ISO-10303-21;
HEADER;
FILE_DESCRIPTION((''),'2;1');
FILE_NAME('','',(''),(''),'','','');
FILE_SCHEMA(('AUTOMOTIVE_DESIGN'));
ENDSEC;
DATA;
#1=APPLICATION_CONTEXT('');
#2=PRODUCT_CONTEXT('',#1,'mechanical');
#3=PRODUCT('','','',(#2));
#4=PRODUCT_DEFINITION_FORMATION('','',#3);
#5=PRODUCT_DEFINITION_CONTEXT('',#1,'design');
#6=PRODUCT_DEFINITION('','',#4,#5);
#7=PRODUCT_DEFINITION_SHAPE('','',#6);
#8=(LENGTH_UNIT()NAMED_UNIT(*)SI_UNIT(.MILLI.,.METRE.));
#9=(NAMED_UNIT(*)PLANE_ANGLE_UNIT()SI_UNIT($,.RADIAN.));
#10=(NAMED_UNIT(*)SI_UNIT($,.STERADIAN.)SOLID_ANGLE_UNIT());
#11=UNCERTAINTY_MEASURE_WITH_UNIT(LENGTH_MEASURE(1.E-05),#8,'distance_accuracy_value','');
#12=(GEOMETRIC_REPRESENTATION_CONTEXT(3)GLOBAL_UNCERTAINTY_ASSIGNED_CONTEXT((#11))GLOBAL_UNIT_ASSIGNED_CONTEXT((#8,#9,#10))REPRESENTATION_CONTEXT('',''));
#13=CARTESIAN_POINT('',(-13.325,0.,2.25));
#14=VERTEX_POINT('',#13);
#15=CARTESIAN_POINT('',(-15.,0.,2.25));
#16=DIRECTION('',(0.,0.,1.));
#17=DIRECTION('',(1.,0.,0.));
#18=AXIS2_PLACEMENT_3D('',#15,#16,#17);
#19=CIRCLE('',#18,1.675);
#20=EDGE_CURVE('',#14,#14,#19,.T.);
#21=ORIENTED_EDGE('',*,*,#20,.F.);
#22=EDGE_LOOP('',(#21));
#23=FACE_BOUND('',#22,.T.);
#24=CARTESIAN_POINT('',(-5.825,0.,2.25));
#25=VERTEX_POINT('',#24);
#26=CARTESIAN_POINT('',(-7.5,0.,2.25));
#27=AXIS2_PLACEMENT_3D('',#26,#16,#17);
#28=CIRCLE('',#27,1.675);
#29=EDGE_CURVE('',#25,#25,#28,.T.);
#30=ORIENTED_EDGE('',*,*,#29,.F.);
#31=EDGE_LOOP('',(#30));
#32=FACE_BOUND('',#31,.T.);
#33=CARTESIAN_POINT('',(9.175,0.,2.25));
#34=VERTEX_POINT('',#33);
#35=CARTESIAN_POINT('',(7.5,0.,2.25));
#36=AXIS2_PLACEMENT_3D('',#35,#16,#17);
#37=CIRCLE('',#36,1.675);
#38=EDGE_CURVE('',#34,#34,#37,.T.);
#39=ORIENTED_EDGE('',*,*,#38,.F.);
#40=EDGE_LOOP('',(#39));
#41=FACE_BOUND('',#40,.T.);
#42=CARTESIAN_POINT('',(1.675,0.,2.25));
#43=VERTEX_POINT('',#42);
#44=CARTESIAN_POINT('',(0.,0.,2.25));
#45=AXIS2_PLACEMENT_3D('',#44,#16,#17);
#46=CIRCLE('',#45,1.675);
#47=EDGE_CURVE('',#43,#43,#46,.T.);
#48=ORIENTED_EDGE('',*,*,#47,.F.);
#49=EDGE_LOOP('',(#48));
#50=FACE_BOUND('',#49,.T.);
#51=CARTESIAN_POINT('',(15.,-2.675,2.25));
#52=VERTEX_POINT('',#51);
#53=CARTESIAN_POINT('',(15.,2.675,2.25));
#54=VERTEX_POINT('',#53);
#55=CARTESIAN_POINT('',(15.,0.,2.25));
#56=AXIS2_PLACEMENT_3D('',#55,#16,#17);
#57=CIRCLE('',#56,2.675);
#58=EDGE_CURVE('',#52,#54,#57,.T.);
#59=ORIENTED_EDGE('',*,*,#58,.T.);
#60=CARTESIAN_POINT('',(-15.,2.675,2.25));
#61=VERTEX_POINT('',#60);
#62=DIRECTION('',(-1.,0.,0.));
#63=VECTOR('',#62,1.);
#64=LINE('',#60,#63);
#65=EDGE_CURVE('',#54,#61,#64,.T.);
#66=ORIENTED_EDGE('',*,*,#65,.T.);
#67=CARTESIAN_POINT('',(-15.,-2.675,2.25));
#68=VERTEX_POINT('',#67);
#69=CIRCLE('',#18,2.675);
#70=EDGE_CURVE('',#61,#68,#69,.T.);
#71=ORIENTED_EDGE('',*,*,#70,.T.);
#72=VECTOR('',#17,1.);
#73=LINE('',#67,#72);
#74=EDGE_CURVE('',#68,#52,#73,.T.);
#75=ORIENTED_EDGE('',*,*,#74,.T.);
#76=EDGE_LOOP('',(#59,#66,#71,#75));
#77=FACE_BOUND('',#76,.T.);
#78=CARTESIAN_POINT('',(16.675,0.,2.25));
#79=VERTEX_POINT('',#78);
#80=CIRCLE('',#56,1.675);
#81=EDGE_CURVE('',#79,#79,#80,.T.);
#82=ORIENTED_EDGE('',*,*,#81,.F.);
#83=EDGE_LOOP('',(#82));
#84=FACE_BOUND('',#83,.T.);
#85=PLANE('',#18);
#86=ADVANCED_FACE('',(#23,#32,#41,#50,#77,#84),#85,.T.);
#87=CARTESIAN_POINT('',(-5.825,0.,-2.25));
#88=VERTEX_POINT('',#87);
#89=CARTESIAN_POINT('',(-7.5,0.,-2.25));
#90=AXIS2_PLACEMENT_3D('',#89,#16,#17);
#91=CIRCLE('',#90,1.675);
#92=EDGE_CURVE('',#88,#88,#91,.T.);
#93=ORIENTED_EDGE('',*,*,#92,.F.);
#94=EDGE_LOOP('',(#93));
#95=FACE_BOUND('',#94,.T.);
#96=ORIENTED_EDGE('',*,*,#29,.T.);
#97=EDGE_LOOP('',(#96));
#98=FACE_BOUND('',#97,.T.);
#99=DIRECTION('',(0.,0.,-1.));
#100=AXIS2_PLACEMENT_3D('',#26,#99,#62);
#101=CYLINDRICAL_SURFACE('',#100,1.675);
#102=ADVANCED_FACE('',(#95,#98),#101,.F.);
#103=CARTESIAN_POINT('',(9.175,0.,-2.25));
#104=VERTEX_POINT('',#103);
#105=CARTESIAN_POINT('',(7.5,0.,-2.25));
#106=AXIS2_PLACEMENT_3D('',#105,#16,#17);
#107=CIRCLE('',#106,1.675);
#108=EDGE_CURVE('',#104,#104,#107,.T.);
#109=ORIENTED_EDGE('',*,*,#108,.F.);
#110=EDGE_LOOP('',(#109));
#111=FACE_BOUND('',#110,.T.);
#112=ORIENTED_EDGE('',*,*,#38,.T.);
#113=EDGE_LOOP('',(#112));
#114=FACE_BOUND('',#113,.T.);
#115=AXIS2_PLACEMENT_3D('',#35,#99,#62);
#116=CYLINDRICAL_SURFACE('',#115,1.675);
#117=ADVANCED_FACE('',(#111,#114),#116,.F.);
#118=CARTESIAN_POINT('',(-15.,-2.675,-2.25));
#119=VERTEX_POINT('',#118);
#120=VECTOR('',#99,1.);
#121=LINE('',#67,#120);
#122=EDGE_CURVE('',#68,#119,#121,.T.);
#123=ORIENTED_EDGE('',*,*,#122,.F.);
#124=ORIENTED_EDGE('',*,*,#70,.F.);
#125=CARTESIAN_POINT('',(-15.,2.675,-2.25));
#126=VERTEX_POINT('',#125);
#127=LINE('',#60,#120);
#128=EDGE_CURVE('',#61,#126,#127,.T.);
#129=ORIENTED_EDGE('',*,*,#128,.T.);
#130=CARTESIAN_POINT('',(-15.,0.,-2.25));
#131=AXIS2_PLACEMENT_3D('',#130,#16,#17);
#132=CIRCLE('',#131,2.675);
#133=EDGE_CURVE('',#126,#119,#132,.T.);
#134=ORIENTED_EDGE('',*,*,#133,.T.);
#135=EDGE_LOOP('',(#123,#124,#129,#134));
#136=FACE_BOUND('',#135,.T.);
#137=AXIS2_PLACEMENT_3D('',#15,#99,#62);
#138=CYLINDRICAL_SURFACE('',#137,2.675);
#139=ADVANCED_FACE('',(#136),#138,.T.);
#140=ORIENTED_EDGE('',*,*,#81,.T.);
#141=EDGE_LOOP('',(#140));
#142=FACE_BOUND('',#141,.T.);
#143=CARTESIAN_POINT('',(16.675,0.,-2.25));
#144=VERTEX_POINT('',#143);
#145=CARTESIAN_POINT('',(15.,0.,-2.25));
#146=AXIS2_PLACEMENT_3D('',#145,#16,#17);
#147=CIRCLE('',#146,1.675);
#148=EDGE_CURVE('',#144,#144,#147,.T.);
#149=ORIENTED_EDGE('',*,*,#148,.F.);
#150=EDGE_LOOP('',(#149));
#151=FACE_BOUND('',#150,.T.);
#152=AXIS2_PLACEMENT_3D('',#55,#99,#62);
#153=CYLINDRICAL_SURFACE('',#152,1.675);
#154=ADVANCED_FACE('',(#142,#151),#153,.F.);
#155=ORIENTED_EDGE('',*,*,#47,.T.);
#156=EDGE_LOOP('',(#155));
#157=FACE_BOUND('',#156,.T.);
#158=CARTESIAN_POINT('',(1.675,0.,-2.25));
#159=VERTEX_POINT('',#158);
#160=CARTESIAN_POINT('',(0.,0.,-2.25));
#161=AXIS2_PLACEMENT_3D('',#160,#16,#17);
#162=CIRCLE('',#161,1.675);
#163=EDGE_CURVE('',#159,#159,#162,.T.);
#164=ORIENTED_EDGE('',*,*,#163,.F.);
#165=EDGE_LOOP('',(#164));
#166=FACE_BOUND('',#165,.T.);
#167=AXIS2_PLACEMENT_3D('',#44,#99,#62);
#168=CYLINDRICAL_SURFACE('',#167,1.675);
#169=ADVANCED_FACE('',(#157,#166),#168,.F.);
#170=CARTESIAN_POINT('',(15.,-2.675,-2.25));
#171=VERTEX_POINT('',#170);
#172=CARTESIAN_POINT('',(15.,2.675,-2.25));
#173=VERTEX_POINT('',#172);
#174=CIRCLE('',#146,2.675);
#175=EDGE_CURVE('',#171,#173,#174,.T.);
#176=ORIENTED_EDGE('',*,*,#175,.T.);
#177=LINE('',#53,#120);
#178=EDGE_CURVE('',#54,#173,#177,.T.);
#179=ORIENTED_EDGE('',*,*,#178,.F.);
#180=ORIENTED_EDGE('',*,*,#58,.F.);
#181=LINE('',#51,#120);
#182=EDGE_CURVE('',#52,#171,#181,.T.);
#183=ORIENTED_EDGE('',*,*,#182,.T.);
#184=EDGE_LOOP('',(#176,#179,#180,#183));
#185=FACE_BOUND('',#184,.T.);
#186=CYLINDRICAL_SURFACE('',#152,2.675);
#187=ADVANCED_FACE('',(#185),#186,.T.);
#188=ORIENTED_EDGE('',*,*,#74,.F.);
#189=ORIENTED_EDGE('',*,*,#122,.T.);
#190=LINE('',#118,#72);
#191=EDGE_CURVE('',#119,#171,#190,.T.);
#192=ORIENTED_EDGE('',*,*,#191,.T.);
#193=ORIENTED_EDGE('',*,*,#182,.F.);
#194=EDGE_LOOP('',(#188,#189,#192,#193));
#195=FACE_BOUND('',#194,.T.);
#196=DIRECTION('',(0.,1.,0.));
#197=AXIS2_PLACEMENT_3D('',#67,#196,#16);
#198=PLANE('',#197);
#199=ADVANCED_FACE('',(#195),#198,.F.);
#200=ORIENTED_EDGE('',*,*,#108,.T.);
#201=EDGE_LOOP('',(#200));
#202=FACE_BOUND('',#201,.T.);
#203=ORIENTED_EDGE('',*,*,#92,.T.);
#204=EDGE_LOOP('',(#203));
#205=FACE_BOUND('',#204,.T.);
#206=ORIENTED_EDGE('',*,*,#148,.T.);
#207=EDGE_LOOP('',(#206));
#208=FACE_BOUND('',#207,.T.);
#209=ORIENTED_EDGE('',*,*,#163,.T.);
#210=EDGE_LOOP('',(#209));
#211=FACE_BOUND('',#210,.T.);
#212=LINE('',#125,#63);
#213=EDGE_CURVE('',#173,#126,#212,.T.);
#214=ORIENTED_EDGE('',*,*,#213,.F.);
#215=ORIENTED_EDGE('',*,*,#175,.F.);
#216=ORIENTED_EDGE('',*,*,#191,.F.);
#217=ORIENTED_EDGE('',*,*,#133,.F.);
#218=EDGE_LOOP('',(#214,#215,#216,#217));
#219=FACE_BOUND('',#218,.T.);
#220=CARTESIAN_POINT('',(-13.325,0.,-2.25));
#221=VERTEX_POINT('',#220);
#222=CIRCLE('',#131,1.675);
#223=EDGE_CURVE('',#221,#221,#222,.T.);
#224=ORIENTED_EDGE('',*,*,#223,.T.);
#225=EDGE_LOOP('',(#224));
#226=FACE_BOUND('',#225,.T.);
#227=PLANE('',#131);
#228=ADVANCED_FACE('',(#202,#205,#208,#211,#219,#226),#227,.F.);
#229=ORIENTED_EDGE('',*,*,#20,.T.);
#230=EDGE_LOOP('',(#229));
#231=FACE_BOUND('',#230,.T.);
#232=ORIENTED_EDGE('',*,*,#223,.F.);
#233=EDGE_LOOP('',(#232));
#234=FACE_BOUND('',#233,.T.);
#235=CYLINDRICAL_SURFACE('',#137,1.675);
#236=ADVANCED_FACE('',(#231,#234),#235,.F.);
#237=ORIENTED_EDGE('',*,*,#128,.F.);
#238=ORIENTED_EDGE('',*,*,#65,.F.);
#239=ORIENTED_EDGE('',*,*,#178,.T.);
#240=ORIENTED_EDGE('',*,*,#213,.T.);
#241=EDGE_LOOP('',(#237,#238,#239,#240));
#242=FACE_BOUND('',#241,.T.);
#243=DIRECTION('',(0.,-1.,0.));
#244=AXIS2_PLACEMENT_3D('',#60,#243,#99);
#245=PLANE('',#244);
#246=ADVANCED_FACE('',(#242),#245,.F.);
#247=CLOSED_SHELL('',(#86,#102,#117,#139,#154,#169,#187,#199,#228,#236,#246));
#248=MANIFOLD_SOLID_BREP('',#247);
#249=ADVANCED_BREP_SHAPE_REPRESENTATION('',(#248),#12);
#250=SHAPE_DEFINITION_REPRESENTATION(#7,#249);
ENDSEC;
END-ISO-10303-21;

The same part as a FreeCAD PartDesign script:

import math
import FreeCAD as App
import Part
import Sketcher
Q = App.Units.Quantity

doc = App.newDocument("Part")
params = doc.addObject("Spreadsheet::Sheet", "Params")
for row, (alias, value) in enumerate([
    ("sketch1_diameter", "3.35 mm"),
    ("sketch1_width", "30 mm"),
    ("pad1_length", "4.5 mm"),
], start=1):
    params.set(f"A{row}", alias)
    params.set(f"B{row}", "=" + value)
    params.setAlias(f"B{row}", alias)

body = doc.addObject("PartDesign::Body", "Body")

# Sketch on XY plane
sketch1 = body.newObject("Sketcher::SketchObject", "Sketch")
sketch1.AttachmentSupport = (doc.getObject("XY_Plane"), [""])
sketch1.MapMode = "FlatFace"
sketch1.addGeometry([
    Part.LineSegment(App.Vector(15, 2.7, 0), App.Vector(-15, 2.7, 0)),  # 0
    Part.ArcOfCircle(Part.Circle(App.Vector(-15, 0, 0), App.Vector(0, 0, 1), 2.7), math.radians(90), math.radians(270)),  # 1
    Part.LineSegment(App.Vector(-15, -2.7, 0), App.Vector(15, -2.7, 0)),  # 2
    Part.ArcOfCircle(Part.Circle(App.Vector(15, 0, 0), App.Vector(0, 0, 1), 2.7), math.radians(-90), math.radians(90)),  # 3
    Part.Circle(App.Vector(15, 0, 0), App.Vector(0, 0, 1), 1.7),  # 4
    Part.Circle(App.Vector(7.5, 0, 0), App.Vector(0, 0, 1), 1.7),  # 5
    Part.Circle(App.Vector(0, 0, 0), App.Vector(0, 0, 1), 1.7),  # 6
    Part.Circle(App.Vector(-7.5, 0, 0), App.Vector(0, 0, 1), 1.7),  # 7
    Part.Circle(App.Vector(-15, 0, 0), App.Vector(0, 0, 1), 1.7),  # 8
], False)
sketch1.addConstraint([
    Sketcher.Constraint("Tangent", 0, 2, 1, 1),
    Sketcher.Constraint("Tangent", 1, 2, 2, 1),
    Sketcher.Constraint("Tangent", 2, 2, 3, 1),
    Sketcher.Constraint("Tangent", 3, 2, 0, 1),
    Sketcher.Constraint("Horizontal", 0),
    Sketcher.Constraint("Horizontal", 2),
    Sketcher.Constraint("Coincident", 6, 3, -1, 1),
    Sketcher.Constraint("Coincident", 4, 3, 3, 3),
    Sketcher.Constraint("Coincident", 8, 3, 1, 3),
    Sketcher.Constraint("Equal", 4, 5),
    Sketcher.Constraint("Equal", 5, 6),
    Sketcher.Constraint("Equal", 6, 7),
    Sketcher.Constraint("Equal", 7, 8),
    Sketcher.Constraint("Symmetric", 1, 3, 3, 3, -1, 1),
    Sketcher.Constraint("Symmetric", 5, 3, 7, 3, -1, 1),
    Sketcher.Constraint("PointOnObject", 5, 3, -1),
    Sketcher.Constraint("Diameter", 4, Q("3.35 mm")),
    Sketcher.Constraint("DistanceX", 0, 2, 0, 1, Q("30 mm")),
    Sketcher.Constraint("Radius", 1, Q("2.675 mm")),
    Sketcher.Constraint("DistanceX", 7, 3, 5, 3, Q("15 mm")),
])
sketch1.setExpression("Constraints[16]", "Params.sketch1_diameter")
sketch1.setExpression("Constraints[17]", "Params.sketch1_width")
pad1 = body.newObject("PartDesign::Pad", "Pad")
pad1.Profile = sketch1
pad1.setExpression("Length", "Params.pad1_length")
pad1.Midplane = True

doc.recompute()
